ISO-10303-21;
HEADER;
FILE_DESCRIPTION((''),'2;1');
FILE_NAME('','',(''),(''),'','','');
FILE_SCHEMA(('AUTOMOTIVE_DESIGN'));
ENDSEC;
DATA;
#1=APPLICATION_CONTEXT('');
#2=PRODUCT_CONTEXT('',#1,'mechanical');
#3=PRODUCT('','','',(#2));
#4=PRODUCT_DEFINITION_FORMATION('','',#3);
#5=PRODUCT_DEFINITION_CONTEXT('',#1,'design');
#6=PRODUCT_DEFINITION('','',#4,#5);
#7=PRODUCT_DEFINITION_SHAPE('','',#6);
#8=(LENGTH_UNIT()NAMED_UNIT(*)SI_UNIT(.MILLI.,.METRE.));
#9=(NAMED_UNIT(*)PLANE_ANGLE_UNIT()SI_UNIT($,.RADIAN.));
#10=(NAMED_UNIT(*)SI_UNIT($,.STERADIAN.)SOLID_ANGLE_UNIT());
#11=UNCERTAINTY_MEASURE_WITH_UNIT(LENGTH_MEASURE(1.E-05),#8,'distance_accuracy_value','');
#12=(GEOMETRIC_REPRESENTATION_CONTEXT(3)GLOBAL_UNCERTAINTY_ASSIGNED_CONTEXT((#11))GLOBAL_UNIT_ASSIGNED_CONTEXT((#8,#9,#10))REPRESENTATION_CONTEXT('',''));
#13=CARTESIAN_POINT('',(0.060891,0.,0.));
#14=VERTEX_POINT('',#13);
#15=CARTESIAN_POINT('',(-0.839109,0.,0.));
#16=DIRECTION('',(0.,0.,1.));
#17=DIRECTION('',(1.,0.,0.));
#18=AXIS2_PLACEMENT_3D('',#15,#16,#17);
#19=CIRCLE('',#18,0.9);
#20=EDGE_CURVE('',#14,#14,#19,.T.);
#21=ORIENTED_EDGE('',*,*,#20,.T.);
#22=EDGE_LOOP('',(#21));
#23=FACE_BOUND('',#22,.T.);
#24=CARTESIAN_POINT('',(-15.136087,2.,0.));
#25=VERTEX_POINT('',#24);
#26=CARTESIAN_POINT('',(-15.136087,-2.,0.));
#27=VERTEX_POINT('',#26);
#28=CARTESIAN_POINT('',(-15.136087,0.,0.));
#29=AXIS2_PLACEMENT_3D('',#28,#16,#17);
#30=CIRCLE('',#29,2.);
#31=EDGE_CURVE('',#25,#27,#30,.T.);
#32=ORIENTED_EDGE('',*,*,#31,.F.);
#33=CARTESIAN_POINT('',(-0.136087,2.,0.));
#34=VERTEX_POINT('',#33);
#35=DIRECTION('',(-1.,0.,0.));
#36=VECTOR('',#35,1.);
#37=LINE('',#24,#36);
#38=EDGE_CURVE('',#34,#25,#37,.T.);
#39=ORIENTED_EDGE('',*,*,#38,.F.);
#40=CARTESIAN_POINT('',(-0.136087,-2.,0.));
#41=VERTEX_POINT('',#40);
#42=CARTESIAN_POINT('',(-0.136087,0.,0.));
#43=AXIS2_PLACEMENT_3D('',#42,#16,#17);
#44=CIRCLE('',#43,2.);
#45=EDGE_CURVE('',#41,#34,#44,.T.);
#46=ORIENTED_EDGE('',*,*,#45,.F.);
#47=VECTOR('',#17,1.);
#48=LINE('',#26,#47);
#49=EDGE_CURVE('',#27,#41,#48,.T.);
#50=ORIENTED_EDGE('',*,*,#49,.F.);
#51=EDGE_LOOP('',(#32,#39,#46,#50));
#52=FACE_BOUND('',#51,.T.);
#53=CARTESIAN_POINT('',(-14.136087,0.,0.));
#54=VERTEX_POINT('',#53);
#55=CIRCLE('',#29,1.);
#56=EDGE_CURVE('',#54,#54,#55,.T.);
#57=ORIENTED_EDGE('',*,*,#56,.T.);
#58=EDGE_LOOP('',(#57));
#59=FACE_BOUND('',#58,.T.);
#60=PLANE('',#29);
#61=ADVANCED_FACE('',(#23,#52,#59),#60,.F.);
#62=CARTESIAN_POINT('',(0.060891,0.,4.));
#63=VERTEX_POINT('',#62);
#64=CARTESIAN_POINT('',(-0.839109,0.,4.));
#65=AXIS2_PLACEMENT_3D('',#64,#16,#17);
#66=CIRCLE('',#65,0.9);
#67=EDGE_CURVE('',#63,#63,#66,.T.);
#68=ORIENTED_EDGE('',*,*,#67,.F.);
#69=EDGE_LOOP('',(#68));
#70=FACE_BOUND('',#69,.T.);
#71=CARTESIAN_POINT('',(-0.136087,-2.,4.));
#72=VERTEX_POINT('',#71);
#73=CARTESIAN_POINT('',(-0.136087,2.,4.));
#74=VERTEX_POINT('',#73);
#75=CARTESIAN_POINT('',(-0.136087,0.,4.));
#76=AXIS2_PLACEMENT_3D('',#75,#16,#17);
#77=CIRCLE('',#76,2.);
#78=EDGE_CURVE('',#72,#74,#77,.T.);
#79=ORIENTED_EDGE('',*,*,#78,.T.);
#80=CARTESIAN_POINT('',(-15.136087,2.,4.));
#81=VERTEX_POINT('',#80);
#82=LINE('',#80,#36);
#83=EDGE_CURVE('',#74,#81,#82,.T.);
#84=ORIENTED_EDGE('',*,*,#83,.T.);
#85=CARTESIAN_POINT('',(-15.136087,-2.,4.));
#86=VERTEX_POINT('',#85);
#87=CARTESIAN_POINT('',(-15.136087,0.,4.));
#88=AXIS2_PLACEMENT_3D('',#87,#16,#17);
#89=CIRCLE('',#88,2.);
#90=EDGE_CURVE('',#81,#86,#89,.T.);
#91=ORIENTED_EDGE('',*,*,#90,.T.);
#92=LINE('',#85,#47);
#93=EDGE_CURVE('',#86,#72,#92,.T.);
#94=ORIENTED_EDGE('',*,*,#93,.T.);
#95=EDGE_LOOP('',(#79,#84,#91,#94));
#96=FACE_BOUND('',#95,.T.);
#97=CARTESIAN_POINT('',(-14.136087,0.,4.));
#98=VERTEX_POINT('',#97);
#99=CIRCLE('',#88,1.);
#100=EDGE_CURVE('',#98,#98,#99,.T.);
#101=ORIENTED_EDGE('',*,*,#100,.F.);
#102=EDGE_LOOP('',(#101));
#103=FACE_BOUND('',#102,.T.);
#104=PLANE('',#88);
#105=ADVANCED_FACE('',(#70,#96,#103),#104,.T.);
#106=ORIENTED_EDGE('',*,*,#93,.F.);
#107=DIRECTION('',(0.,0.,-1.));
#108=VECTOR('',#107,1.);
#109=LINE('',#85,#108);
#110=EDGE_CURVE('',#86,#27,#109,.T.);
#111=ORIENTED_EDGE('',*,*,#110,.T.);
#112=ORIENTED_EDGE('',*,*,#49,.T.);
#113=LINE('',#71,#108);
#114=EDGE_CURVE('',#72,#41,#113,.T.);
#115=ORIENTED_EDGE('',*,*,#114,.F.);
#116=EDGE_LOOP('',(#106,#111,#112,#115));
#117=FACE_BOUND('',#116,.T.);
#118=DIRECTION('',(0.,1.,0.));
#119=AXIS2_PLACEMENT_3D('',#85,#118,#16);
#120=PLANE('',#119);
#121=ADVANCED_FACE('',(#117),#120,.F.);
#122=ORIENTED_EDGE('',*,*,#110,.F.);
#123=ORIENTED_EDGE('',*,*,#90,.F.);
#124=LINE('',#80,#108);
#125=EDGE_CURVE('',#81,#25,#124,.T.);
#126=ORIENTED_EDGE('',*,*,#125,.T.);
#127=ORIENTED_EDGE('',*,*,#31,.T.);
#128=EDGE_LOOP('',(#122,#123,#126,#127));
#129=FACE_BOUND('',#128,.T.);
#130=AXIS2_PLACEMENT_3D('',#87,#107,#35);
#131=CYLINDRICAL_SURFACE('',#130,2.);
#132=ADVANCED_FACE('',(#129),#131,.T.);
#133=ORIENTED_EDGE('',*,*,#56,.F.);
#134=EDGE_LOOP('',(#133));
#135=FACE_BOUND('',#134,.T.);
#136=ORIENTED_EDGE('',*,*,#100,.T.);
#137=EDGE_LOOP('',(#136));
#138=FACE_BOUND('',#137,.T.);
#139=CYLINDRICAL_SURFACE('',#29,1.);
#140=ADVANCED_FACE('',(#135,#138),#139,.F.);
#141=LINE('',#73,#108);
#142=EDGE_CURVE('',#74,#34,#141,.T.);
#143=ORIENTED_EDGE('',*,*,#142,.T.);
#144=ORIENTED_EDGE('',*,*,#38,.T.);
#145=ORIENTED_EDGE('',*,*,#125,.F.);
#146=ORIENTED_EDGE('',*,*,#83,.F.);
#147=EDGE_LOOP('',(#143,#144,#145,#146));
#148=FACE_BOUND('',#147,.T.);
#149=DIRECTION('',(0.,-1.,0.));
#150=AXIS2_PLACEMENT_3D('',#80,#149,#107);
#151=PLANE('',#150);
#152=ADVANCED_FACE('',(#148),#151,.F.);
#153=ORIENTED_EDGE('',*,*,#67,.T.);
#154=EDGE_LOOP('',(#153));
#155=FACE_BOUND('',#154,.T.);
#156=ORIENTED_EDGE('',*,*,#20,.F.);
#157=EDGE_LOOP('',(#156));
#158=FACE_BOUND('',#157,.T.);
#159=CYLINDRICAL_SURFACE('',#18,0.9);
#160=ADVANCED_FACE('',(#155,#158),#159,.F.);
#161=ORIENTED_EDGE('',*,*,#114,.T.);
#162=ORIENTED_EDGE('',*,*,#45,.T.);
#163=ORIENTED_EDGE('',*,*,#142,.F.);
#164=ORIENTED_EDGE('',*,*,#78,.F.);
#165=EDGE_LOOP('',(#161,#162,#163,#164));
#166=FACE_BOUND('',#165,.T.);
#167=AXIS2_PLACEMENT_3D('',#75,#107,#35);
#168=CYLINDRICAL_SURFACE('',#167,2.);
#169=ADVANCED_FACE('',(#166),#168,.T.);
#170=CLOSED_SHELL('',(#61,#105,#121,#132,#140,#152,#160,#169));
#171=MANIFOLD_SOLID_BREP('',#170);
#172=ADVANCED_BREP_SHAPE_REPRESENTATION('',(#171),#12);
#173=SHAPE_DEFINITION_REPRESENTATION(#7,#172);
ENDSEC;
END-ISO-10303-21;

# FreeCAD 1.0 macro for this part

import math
import FreeCAD as App
import Part
import Sketcher

V = App.Vector
Q = App.Units.Quantity

doc = App.newDocument("Part")
body = doc.addObject("PartDesign::Body", "Body")

# Sketch on XY plane
sketch1 = doc.addObject("Sketcher::SketchObject", "Sketch")
body.addObject(sketch1)
sketch1.AttachmentSupport = (doc.XY_Plane, [""])
sketch1.MapMode = "FlatFace"
sketch1.addGeometry(Part.LineSegment(V(-0.1, 2, 0), V(-15.1, 2, 0)), False)
sketch1.addGeometry(Part.ArcOfCircle(Part.Circle(V(-15.1, 0, 0), V(0, 0, 1), 2), math.radians(90), math.radians(270)), False)
sketch1.addGeometry(Part.LineSegment(V(-15.1, -2, 0), V(-0.1, -2, 0)), False)
sketch1.addGeometry(Part.ArcOfCircle(Part.Circle(V(-0.1, 0, 0), V(0, 0, 1), 2), math.radians(-90), math.radians(90)), False)
sketch1.addConstraint(Sketcher.Constraint("Tangent", 0, 2, 1, 1))
sketch1.addConstraint(Sketcher.Constraint("Tangent", 1, 2, 2, 1))
sketch1.addConstraint(Sketcher.Constraint("Tangent", 2, 2, 3, 1))
sketch1.addConstraint(Sketcher.Constraint("Tangent", 3, 2, 0, 1))
sketch1.addConstraint(Sketcher.Constraint("Horizontal", 0))
sketch1.addConstraint(Sketcher.Constraint("Horizontal", 2))
sketch1.addConstraint(Sketcher.Constraint("PointOnObject", 1, 3, -1))
sketch1.addConstraint(Sketcher.Constraint("Radius", 1, Q("2 mm")))
sketch1.addConstraint(Sketcher.Constraint("DistanceX", 0, 2, 0, 1, Q("15 mm")))
sketch1.addConstraint(Sketcher.Constraint("DistanceX", 1, 3, -1, 1, Q("15.136087 mm")))
pad1 = doc.addObject("PartDesign::Pad", "Pad")
body.addObject(pad1)
pad1.Profile = sketch1
pad1.Length = 4

# Sketch on XY plane
sketch2 = doc.addObject("Sketcher::SketchObject", "Sketch001")
body.addObject(sketch2)
sketch2.AttachmentSupport = (doc.XY_Plane, [""])
sketch2.MapMode = "FlatFace"
sketch2.AttachmentOffset = App.Placement(V(0, 0, 4), App.Rotation())
sketch2.addGeometry(Part.Circle(V(-15.1, 0, 0), V(0, 0, 1), 1), False)
sketch2.addGeometry(Part.Circle(V(-0.8, 0, 0), V(0, 0, 1), 0.9), False)
sketch2.addConstraint(Sketcher.Constraint("PointOnObject", 0, 3, -1))
sketch2.addConstraint(Sketcher.Constraint("PointOnObject", 1, 3, -1))
sketch2.addConstraint(Sketcher.Constraint("Diameter", 0, Q("2 mm")))
sketch2.addConstraint(Sketcher.Constraint("Diameter", 1, Q("1.8 mm")))
sketch2.addConstraint(Sketcher.Constraint("DistanceX", 1, 3, -1, 1, Q("0.839109 mm")))
sketch2.addConstraint(Sketcher.Constraint("DistanceX", 0, 3, -1, 1, Q("15.136087 mm")))
pocket1 = doc.addObject("PartDesign::Pocket", "Pocket")
body.addObject(pocket1)
pocket1.Profile = sketch2
pocket1.Type = "ThroughAll"

doc.recompute()
